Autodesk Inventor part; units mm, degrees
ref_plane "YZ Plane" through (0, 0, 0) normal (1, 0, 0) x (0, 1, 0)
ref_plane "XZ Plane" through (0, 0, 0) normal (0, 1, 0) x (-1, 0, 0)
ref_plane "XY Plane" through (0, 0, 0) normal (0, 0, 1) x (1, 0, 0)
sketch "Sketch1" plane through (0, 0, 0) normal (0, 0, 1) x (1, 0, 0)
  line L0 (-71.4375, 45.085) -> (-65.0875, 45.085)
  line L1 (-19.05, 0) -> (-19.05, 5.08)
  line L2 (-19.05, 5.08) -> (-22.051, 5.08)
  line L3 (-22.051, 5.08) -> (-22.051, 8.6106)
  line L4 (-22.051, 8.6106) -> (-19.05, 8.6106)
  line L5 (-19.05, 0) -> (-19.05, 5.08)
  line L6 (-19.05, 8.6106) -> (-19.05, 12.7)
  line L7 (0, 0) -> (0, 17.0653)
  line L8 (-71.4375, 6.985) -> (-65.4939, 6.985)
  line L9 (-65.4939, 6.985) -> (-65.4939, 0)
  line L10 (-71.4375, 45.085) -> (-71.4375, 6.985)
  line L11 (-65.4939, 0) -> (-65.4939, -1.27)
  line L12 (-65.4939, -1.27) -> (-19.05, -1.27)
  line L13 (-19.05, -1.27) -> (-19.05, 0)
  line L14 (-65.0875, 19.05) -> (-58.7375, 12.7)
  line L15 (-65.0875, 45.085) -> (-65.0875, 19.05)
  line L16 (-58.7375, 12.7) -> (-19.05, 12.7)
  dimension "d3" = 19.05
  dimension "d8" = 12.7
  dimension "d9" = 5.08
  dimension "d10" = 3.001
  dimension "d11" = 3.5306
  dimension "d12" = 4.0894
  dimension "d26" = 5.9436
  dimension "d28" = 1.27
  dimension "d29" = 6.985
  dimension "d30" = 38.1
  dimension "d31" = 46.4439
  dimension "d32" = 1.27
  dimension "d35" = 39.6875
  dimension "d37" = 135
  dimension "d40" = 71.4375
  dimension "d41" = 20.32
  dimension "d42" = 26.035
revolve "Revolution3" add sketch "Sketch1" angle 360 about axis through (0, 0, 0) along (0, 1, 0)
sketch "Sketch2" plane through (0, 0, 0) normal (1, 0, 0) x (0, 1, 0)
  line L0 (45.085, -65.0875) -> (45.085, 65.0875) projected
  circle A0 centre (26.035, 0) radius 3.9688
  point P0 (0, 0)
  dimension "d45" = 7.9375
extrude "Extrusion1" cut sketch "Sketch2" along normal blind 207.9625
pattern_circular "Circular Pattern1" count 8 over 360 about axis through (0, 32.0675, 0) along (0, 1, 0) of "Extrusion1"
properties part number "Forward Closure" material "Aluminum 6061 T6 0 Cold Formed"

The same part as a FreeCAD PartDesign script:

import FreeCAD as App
import Part
import Sketcher
from FreeCAD import Vector
Q = App.Units.Quantity

doc = App.newDocument("Part")
body = doc.addObject("PartDesign::Body", "Body")

# Sketch on XY plane
sketch1 = body.newObject("Sketcher::SketchObject", "Sketch")
sketch1.AttachmentSupport = (doc.getObject("XY_Plane"), [""])
sketch1.MapMode = "FlatFace"
sketch1.addGeometry([
    Part.LineSegment(Vector(-65.1, 45.1, 0), Vector(-71.4, 45.1, 0)),  # 0
    Part.LineSegment(Vector(-71.4, 45.1, 0), Vector(-71.4, 7, 0)),  # 1
    Part.LineSegment(Vector(-71.4, 7, 0), Vector(-65.5, 7, 0)),  # 2
    Part.LineSegment(Vector(-65.5, 7, 0), Vector(-65.5, -1.3, 0)),  # 3
    Part.LineSegment(Vector(-65.5, -1.3, 0), Vector(-19.1, -1.3, 0)),  # 4
    Part.LineSegment(Vector(-19.1, -1.3, 0), Vector(-19.1, 5.1, 0)),  # 5
    Part.LineSegment(Vector(-19.1, 5.1, 0), Vector(-22.1, 5.1, 0)),  # 6
    Part.LineSegment(Vector(-22.1, 5.1, 0), Vector(-22.1, 8.6, 0)),  # 7
    Part.LineSegment(Vector(-22.1, 8.6, 0), Vector(-19.1, 8.6, 0)),  # 8
    Part.LineSegment(Vector(-19.1, 8.6, 0), Vector(-19.1, 12.7, 0)),  # 9
    Part.LineSegment(Vector(-19.1, 12.7, 0), Vector(-58.7, 12.7, 0)),  # 10
    Part.LineSegment(Vector(-58.7, 12.7, 0), Vector(-65.1, 19.1, 0)),  # 11
    Part.LineSegment(Vector(-65.1, 19.1, 0), Vector(-65.1, 45.1, 0)),  # 12
], False)
sketch1.addConstraint([
    Sketcher.Constraint("Coincident", 0, 2, 1, 1),
    Sketcher.Constraint("Coincident", 1, 2, 2, 1),
    Sketcher.Constraint("Coincident", 2, 2, 3, 1),
    Sketcher.Constraint("Coincident", 3, 2, 4, 1),
    Sketcher.Constraint("Coincident", 4, 2, 5, 1),
    Sketcher.Constraint("Coincident", 5, 2, 6, 1),
    Sketcher.Constraint("Coincident", 6, 2, 7, 1),
    Sketcher.Constraint("Coincident", 7, 2, 8, 1),
    Sketcher.Constraint("Coincident", 8, 2, 9, 1),
    Sketcher.Constraint("Coincident", 9, 2, 10, 1),
    Sketcher.Constraint("Coincident", 10, 2, 11, 1),
    Sketcher.Constraint("Coincident", 11, 2, 12, 1),
    Sketcher.Constraint("Coincident", 12, 2, 0, 1),
    Sketcher.Constraint("Horizontal", 0),
    Sketcher.Constraint("Vertical", 1),
    Sketcher.Constraint("Horizontal", 2),
    Sketcher.Constraint("Vertical", 3),
    Sketcher.Constraint("Horizontal", 4),
    Sketcher.Constraint("Vertical", 5),
    Sketcher.Constraint("Horizontal", 6),
    Sketcher.Constraint("Vertical", 7),
    Sketcher.Constraint("Horizontal", 8),
    Sketcher.Constraint("Vertical", 9),
    Sketcher.Constraint("Horizontal", 10),
    Sketcher.Constraint("Vertical", 12),
    Sketcher.Constraint("Vertical", 5, 2, 8, 2),
    Sketcher.Constraint("Equal", 0, 5),
    Sketcher.Constraint("DistanceY", 1, 2, 1, 1, Q("1.5 in")),
    Sketcher.Constraint("Angle", 11, Q("135 deg")),
    Sketcher.Constraint("DistanceY", -1, 1, 5, 2, Q("0.2 in")),
    Sketcher.Constraint("DistanceY", -1, 1, 9, 2, Q("0.5 in")),
    Sketcher.Constraint("DistanceX", 1, 2, 10, 2, Q("0.5 in")),
    Sketcher.Constraint("DistanceX", 2, 1, 2, 2, Q("0.234 in")),
    Sketcher.Constraint("DistanceX", 10, 2, 10, 1, Q("1.5625 in")),
    Sketcher.Constraint("DistanceY", 7, 1, 7, 2, Q("0.139 in")),
    Sketcher.Constraint("DistanceY", 12, 1, 12, 2, Q("1.025 in")),
    Sketcher.Constraint("DistanceY", 3, 2, -1, 1, Q("0.05 in")),
    Sketcher.Constraint("DistanceX", 4, 2, -1, 1, Q("0.75 in")),
    Sketcher.Constraint("DistanceX", 6, 2, 6, 1, Q("3.001 mm")),
])
revolution = body.newObject("PartDesign::Revolution", "Revolution")
revolution.Profile = sketch1
revolution.ReferenceAxis = (sketch1, ["V_Axis"])
revolution.Angle = 360

# Sketch on YZ plane
sketch2 = body.newObject("Sketcher::SketchObject", "Sketch001")
sketch2.AttachmentSupport = (doc.getObject("YZ_Plane"), [""])
sketch2.MapMode = "FlatFace"
sketch2.addGeometry(Part.Circle(Vector(26, 0, 0), Vector(0, 0, 1), 4), False)
sketch2.addConstraint([
    Sketcher.Constraint("PointOnObject", 0, 3, -1),
    Sketcher.Constraint("Diameter", 0, Q("0.3125 in")),
    Sketcher.Constraint("DistanceX", -1, 1, 0, 3, Q("1.025 in")),
])
pocket1 = body.newObject("PartDesign::Pocket", "Pocket")
pocket1.Profile = sketch2
pocket1.Length = Q("8.1875 in")
pocket1.Reversed = True
doc.recompute()

polarpattern = body.newObject("PartDesign::PolarPattern", "PolarPattern")
polarpattern.Originals = [pocket1]
polarpattern.Axis = (doc.getObject("Y_Axis"), [""])
polarpattern.Angle = 360
polarpattern.Occurrences = 8
body.Tip = polarpattern

doc.recompute()
